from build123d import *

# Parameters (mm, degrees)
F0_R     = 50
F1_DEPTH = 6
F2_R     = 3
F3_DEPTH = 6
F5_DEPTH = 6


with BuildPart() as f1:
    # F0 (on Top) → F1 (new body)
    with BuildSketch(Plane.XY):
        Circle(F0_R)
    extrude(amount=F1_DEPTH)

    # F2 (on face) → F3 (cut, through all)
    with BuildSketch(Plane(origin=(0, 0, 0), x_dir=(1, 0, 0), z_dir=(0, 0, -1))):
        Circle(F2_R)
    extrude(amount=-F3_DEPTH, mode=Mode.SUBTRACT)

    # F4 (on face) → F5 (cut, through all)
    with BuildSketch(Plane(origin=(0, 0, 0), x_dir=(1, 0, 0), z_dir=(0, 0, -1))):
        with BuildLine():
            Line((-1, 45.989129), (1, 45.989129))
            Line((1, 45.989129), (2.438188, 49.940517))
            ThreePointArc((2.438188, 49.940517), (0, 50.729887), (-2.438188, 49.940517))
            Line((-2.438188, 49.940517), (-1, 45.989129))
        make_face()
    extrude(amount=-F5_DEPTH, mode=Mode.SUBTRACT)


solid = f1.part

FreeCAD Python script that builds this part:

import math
import FreeCAD as App
import Part
import Sketcher
from FreeCAD import Vector
Q = App.Units.Quantity

doc = App.newDocument("Part")
body = doc.addObject("PartDesign::Body", "Body")

sketch1 = body.newObject("Sketcher::SketchObject", "Sketch")
sketch1.AttachmentSupport = (doc.getObject("XY_Plane"), [""])
sketch1.MapMode = "FlatFace"
sketch1.addGeometry(Part.Circle(Vector(0, 0, 0), Vector(0, 0, 1), 50), False)
sketch1.addConstraint(Sketcher.Constraint("Coincident", 0, 3, -1, 1))
sketch1.addConstraint(Sketcher.Constraint("Diameter", 0, 100.0))
pad1 = body.newObject("PartDesign::Pad", "Pad")
pad1.Profile = sketch1
pad1.Length = 6

sketch2 = body.newObject("Sketcher::SketchObject", "Sketch001")
sketch2.AttachmentSupport = (doc.getObject("XY_Plane"), [""])
sketch2.MapMode = "FlatFace"
sketch2.addGeometry(Part.Circle(Vector(0, 0, 0), Vector(0, 0, 1), 3), False)
sketch2.addConstraint(Sketcher.Constraint("Coincident", 0, 3, -1, 1))
sketch2.addConstraint(Sketcher.Constraint("Diameter", 0, 6.0))
pocket1 = body.newObject("PartDesign::Pocket", "Pocket")
pocket1.Profile = sketch2
pocket1.Type = "ThroughAll"
pocket1.Reversed = True

sketch3 = body.newObject("Sketcher::SketchObject", "Sketch002")
sketch3.AttachmentSupport = (doc.getObject("XY_Plane"), [""])
sketch3.MapMode = "FlatFace"
sketch3.addGeometry(Part.LineSegment(Vector(-1, -46, 0), Vector(1, -46, 0)), False)
sketch3.addGeometry(Part.LineSegment(Vector(1, -46, 0), Vector(2.4, -49.9, 0)), False)
sketch3.addGeometry(Part.ArcOfCircle(Part.Circle(Vector(0, -46.6, 0), Vector(0, 0, 1), 4.2), math.radians(-126), math.radians(-54)), False)
sketch3.addGeometry(Part.LineSegment(Vector(-2.4, -49.9, 0), Vector(-1, -46, 0)), False)
sketch3.addConstraint(Sketcher.Constraint("Coincident", 0, 2, 1, 1))
sketch3.addConstraint(Sketcher.Constraint("Coincident", 1, 2, 2, 2))
sketch3.addConstraint(Sketcher.Constraint("Coincident", 2, 1, 3, 1))
sketch3.addConstraint(Sketcher.Constraint("Coincident", 3, 2, 0, 1))
sketch3.addConstraint(Sketcher.Constraint("Horizontal", 0))
sketch3.addConstraint(Sketcher.Constraint("Symmetric", 1, 2, 2, 1, -2))
sketch3.addConstraint(Sketcher.Constraint("Equal", 1, 3))
sketch3.addConstraint(Sketcher.Constraint("DistanceX", 0, 1, 0, 2, 2.0))
sketch3.addConstraint(Sketcher.Constraint("Angle", 1, Q("-69.999995 deg")))
sketch3.addConstraint(Sketcher.Constraint("Radius", 2, 4.160195))
sketch3.addConstraint(Sketcher.Constraint("Distance", 1, 4.204979))
sketch3.addConstraint(Sketcher.Constraint("DistanceY", 0, 2, -1, 1, 45.989129))
pocket2 = body.newObject("PartDesign::Pocket", "Pocket001")
pocket2.Profile = sketch3
pocket2.Type = "ThroughAll"
pocket2.Reversed = True

doc.recompute()
